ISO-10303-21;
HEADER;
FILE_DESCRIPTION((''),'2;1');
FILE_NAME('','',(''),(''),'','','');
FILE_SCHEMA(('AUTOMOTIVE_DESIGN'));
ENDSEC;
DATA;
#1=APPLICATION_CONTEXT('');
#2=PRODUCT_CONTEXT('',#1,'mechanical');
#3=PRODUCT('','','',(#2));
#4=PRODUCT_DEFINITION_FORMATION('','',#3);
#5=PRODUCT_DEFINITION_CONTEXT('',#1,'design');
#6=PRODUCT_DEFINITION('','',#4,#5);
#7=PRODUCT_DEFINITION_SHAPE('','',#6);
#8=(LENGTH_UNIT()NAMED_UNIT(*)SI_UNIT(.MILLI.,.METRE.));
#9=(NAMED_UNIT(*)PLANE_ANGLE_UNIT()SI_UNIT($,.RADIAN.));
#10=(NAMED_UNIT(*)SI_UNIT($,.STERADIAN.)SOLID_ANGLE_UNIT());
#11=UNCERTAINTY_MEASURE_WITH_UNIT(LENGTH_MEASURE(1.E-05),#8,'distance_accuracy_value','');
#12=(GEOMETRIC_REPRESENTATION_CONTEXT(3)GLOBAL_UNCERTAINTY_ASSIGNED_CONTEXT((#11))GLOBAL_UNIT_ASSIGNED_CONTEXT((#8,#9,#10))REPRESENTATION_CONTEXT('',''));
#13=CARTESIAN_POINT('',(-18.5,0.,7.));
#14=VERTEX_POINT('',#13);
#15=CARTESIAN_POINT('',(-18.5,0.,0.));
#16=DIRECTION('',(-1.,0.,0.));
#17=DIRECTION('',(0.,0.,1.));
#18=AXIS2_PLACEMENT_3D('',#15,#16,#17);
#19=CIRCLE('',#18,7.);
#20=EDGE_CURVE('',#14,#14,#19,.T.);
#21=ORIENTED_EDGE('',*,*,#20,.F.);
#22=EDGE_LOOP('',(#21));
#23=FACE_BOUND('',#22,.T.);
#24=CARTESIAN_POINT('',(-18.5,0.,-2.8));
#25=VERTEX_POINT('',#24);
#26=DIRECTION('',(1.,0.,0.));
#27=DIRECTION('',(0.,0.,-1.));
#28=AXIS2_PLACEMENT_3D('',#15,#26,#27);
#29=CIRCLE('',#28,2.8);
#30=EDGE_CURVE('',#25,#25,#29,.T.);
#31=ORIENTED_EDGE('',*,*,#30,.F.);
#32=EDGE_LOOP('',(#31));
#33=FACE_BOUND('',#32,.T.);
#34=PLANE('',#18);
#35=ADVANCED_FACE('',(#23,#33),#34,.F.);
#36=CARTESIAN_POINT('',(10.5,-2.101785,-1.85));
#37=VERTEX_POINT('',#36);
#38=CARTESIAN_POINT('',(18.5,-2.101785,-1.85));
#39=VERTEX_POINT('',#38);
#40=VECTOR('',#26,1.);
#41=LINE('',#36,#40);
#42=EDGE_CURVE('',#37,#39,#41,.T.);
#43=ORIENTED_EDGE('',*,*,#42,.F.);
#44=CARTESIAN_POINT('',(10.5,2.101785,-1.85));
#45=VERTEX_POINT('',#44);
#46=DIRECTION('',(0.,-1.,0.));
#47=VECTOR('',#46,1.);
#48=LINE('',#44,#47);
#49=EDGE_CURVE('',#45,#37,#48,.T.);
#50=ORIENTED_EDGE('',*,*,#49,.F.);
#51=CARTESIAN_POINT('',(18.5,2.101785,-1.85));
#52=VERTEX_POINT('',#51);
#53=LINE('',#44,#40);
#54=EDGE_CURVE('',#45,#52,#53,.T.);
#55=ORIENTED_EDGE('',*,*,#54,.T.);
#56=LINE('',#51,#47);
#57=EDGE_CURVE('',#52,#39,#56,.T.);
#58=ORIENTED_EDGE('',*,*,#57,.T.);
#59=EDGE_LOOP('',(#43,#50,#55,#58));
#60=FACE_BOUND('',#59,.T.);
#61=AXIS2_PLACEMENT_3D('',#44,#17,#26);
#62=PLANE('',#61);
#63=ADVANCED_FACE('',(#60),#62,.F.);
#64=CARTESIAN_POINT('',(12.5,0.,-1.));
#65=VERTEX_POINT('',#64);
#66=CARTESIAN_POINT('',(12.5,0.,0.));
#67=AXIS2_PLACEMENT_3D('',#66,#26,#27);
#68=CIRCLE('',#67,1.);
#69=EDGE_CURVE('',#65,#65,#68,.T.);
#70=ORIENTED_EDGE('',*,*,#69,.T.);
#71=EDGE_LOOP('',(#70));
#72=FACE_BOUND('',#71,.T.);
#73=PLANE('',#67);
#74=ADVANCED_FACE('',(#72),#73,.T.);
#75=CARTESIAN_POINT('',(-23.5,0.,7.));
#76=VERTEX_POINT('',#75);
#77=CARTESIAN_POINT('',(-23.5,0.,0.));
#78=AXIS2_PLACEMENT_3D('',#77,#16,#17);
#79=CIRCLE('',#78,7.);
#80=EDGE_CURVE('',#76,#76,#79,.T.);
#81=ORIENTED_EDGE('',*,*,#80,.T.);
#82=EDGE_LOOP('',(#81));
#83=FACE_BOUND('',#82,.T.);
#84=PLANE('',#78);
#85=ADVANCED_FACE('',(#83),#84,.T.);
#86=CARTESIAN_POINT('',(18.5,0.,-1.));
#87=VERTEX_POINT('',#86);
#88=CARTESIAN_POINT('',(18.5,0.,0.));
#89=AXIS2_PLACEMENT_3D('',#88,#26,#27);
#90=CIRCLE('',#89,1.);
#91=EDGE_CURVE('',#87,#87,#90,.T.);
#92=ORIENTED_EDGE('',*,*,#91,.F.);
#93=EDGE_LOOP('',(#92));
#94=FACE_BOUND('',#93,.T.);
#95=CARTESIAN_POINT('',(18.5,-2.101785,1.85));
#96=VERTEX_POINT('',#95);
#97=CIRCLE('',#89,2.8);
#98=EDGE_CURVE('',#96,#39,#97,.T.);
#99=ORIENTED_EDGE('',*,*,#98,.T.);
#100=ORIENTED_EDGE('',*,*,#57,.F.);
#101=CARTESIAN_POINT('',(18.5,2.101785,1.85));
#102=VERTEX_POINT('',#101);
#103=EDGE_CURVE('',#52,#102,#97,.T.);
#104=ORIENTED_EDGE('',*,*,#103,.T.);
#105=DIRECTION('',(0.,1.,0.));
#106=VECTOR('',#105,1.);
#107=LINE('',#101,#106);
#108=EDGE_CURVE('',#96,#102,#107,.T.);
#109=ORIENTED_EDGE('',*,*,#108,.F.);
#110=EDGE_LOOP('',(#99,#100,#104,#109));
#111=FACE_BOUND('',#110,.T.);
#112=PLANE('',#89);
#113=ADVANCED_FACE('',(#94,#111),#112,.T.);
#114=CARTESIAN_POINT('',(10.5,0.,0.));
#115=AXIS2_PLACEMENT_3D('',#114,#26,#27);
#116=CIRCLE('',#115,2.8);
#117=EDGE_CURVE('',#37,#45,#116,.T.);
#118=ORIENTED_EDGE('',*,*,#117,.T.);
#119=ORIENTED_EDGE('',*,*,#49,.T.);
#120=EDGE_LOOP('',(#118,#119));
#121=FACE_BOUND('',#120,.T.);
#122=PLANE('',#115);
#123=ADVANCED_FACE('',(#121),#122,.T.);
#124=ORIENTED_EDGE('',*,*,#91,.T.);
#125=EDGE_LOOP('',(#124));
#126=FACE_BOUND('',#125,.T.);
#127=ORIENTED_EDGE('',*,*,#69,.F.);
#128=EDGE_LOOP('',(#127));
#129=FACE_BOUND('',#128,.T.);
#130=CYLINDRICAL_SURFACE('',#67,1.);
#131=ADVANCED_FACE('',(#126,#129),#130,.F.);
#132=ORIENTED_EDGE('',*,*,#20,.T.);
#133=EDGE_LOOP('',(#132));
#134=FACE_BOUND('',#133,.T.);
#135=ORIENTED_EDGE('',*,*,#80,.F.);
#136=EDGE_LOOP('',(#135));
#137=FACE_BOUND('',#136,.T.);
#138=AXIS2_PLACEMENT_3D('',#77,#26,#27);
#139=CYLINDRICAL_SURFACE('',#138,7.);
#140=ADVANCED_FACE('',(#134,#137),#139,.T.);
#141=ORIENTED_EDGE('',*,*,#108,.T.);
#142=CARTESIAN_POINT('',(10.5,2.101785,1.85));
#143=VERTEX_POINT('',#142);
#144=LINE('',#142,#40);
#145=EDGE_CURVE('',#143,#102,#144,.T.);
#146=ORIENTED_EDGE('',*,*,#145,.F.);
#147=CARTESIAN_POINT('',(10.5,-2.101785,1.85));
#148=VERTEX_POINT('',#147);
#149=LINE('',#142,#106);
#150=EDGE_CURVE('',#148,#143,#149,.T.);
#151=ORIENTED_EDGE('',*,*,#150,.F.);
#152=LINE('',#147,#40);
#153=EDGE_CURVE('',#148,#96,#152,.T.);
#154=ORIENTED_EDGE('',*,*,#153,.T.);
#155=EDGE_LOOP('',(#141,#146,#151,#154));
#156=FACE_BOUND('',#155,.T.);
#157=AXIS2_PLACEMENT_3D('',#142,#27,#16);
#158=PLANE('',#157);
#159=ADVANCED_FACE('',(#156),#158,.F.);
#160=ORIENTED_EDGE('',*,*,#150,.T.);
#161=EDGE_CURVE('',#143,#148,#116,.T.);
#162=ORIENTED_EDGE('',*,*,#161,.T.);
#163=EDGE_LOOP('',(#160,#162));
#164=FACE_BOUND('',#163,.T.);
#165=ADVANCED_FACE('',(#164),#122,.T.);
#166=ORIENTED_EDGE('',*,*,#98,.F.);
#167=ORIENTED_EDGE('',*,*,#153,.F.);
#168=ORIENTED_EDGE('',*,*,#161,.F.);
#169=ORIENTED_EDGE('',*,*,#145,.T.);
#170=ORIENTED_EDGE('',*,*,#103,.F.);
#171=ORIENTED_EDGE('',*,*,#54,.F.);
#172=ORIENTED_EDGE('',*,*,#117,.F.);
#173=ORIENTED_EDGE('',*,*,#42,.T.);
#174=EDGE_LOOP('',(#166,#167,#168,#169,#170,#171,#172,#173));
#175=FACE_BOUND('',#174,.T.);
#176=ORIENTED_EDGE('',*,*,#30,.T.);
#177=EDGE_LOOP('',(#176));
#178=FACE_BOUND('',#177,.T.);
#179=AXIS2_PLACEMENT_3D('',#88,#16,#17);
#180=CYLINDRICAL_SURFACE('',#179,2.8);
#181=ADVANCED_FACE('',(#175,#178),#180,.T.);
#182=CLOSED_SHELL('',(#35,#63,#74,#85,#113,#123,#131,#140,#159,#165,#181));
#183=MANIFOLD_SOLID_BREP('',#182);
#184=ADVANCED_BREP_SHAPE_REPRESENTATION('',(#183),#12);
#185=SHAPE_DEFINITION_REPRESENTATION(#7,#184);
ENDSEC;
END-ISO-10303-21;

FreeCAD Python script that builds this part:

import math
import FreeCAD as App
import Part
import Sketcher
from FreeCAD import Vector
Q = App.Units.Quantity

doc = App.newDocument("Part")
body = doc.addObject("PartDesign::Body", "Body")

# Sketch on YZ plane
sketch1 = body.newObject("Sketcher::SketchObject", "Sketch")
sketch1.AttachmentSupport = (doc.getObject("YZ_Plane"), [""])
sketch1.MapMode = "FlatFace"
sketch1.addGeometry(Part.Circle(Vector(0, 0, 0), Vector(0, 0, 1), 2.8), False)
sketch1.addConstraint([
    Sketcher.Constraint("Coincident", 0, 3, -1, 1),
    Sketcher.Constraint("Diameter", 0, Q("5.6 mm")),
])
pad1 = body.newObject("PartDesign::Pad", "Pad")
pad1.Profile = sketch1
pad1.Length = 37
pad1.Midplane = True

# Sketch on YZ plane
sketch2 = body.newObject("Sketcher::SketchObject", "Sketch001")
sketch2.AttachmentSupport = (doc.getObject("YZ_Plane"), [""])
sketch2.MapMode = "FlatFace"
sketch2.AttachmentOffset = App.Placement(Vector(0, 0, 18.5), App.Rotation())
sketch2.addGeometry([
    Part.LineSegment(Vector(-2.101785, 1.85, 0), Vector(2.101785, 1.85, 0)),
    Part.ArcOfCircle(Part.Circle(Vector(0, 0, 0), Vector(0, 0, 1), 2.8), math.radians(41.354371), math.radians(138.645629)),
    Part.LineSegment(Vector(2.101785, -1.85, 0), Vector(-2.101785, -1.85, 0)),
    Part.ArcOfCircle(Part.Circle(Vector(0, 0, 0), Vector(0, 0, 1), 2.8), math.radians(-138.645629), math.radians(-41.354371)),
], False)
sketch2.addConstraint([
    Sketcher.Constraint("Coincident", 0, 1, 1, 2),
    Sketcher.Constraint("Coincident", 1, 1, 0, 2),
    Sketcher.Constraint("Coincident", 2, 1, 3, 2),
    Sketcher.Constraint("Coincident", 3, 1, 2, 2),
    Sketcher.Constraint("Horizontal", 0),
    Sketcher.Constraint("Horizontal", 2),
    Sketcher.Constraint("Coincident", 1, 3, -1, 1),
    Sketcher.Constraint("Coincident", 3, 3, -1, 1),
    Sketcher.Constraint("Equal", 1, 3),
    Sketcher.Constraint("Vertical", 1, 1, 2, 1),
    Sketcher.Constraint("Radius", 1, Q("2.8 mm")),
    Sketcher.Constraint("DistanceY", 2, 1, 1, 1, Q("3.7 mm")),
])
pocket1 = body.newObject("PartDesign::Pocket", "Pocket")
pocket1.Profile = sketch2
pocket1.Length = 8

# Sketch on YZ plane
sketch3 = body.newObject("Sketcher::SketchObject", "Sketch002")
sketch3.AttachmentSupport = (doc.getObject("YZ_Plane"), [""])
sketch3.MapMode = "FlatFace"
sketch3.AttachmentOffset = App.Placement(Vector(0, 0, 18.5), App.Rotation())
sketch3.addGeometry(Part.Circle(Vector(0, 0, 0), Vector(0, 0, 1), 1), False)
sketch3.addConstraint([
    Sketcher.Constraint("Coincident", 0, 3, -1, 1),
    Sketcher.Constraint("Diameter", 0, Q("2 mm")),
])
pocket2 = body.newObject("PartDesign::Pocket", "Pocket001")
pocket2.Profile = sketch3
pocket2.Length = 6

# Sketch on YZ plane
sketch4 = body.newObject("Sketcher::SketchObject", "Sketch003")
sketch4.AttachmentSupport = (doc.getObject("YZ_Plane"), [""])
sketch4.MapMode = "FlatFace"
sketch4.AttachmentOffset = App.Placement(Vector(0, 0, -18.5), App.Rotation())
sketch4.addGeometry(Part.Circle(Vector(0, 0, 0), Vector(0, 0, 1), 7), False)
sketch4.addConstraint([
    Sketcher.Constraint("Coincident", 0, 3, -1, 1),
    Sketcher.Constraint("Diameter", 0, Q("14 mm")),
])
pad2 = body.newObject("PartDesign::Pad", "Pad001")
pad2.Profile = sketch4
pad2.Length = 5
pad2.Reversed = True

doc.recompute()
